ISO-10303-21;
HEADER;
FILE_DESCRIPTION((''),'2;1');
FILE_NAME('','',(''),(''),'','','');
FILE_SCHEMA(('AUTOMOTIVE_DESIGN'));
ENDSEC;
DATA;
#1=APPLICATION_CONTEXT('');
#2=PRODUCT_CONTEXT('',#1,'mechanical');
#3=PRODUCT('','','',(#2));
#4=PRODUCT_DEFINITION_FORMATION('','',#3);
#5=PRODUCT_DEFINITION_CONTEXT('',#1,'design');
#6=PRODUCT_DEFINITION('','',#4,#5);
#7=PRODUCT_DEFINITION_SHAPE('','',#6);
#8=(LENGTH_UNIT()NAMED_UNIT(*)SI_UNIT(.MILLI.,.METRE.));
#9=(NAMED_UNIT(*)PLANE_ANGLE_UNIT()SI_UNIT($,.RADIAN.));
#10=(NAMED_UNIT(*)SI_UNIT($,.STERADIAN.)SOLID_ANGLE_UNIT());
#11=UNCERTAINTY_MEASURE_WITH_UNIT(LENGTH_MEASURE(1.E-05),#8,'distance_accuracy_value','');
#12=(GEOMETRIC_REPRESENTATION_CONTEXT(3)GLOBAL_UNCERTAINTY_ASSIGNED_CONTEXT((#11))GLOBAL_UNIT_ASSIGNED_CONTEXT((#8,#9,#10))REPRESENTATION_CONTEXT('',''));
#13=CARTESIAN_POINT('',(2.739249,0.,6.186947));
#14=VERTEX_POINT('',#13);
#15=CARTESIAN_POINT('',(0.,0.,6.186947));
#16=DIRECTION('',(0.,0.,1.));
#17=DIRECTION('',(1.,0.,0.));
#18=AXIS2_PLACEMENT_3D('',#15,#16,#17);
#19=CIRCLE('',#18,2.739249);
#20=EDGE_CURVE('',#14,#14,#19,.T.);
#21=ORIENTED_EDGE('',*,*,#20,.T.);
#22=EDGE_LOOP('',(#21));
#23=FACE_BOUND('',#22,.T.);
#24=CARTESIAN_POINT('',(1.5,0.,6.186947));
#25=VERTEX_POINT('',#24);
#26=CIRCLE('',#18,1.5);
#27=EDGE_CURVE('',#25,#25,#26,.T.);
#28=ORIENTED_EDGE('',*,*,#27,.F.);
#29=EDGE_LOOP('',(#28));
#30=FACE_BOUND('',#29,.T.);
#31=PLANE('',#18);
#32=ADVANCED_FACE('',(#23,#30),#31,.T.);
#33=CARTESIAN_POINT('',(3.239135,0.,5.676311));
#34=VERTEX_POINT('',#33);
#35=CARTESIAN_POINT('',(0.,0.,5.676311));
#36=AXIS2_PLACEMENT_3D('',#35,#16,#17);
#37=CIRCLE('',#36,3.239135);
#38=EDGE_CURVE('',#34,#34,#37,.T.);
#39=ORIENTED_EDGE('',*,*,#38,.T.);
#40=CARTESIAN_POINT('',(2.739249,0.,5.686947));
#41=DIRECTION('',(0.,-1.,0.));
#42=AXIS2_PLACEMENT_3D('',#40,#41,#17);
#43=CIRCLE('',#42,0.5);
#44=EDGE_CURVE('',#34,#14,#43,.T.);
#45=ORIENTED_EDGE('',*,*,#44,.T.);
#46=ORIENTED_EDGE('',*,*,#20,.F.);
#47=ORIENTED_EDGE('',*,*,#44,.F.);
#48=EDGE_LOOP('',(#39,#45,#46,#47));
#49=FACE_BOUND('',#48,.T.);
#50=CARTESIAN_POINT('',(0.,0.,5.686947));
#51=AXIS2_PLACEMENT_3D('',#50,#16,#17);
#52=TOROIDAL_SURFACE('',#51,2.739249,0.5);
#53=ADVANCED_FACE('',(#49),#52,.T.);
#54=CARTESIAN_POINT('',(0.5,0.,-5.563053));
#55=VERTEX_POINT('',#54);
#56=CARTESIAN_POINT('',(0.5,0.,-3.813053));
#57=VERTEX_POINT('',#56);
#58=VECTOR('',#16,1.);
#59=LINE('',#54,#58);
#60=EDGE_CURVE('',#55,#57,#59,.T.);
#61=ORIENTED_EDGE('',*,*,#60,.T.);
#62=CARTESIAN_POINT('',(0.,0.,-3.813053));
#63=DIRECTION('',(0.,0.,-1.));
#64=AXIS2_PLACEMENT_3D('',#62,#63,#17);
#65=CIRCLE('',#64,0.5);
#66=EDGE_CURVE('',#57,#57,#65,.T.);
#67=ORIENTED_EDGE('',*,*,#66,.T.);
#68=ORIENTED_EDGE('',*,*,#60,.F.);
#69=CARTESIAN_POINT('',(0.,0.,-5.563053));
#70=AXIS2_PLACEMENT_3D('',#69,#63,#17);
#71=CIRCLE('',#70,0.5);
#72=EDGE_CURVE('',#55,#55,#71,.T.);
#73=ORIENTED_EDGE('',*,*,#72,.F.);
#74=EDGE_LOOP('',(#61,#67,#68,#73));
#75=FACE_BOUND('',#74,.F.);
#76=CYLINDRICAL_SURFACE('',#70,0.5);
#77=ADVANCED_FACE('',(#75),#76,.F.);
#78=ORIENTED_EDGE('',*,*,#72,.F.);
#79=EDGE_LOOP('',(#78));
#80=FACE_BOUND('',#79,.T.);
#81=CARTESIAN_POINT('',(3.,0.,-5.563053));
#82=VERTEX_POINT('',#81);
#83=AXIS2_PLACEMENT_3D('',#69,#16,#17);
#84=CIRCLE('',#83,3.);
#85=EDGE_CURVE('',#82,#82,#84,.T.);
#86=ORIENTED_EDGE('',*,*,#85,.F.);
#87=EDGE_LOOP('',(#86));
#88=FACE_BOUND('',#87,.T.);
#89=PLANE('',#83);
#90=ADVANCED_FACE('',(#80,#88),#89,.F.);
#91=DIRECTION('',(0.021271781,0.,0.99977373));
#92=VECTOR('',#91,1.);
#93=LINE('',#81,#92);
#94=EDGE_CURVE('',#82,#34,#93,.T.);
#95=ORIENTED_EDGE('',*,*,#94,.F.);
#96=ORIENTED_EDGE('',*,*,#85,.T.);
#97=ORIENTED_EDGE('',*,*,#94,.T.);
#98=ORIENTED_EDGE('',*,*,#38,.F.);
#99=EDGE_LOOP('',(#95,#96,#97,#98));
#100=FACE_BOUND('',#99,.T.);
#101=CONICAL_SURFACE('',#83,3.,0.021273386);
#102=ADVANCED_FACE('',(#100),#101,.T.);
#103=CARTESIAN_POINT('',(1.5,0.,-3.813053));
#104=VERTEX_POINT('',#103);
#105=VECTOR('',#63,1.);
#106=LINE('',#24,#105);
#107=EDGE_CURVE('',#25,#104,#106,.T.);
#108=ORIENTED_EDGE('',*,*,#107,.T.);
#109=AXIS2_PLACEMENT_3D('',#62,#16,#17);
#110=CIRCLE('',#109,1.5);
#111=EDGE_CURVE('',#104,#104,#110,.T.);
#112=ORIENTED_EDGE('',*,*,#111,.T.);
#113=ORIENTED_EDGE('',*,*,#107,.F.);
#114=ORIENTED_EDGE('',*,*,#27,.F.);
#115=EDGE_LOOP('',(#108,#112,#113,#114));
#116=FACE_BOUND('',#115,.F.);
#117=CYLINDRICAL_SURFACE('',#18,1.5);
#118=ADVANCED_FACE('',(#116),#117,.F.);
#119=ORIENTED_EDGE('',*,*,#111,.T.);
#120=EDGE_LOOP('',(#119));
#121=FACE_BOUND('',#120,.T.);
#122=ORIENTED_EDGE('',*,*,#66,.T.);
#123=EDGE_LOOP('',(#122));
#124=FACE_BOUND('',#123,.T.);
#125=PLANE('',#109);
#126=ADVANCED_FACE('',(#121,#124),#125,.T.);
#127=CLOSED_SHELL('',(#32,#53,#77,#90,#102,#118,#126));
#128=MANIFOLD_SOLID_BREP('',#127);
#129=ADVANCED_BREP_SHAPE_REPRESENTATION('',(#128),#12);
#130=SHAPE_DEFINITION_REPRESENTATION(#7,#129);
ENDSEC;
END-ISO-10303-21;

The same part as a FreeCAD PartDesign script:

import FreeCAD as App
import Part
import Sketcher

V = App.Vector
Q = App.Units.Quantity


def edges_at(feature, points):
    """Names of the edges that pass closest to the given points."""
    edges = feature.Shape.Edges
    near = lambda p: min(range(len(edges)), key=lambda i: edges[i].distToShape(Part.Vertex(*p))[0])
    return sorted({f"Edge{near(p) + 1}" for p in points})


def add_polygon(sketch, points):
    """Adds a closed chain of lines whose ends are joined by coincident constraints."""
    first, n = sketch.GeometryCount, len(points)
    for a, b in zip(points, points[1:] + points[:1]):
        sketch.addGeometry(Part.LineSegment(App.Vector(*a, 0), App.Vector(*b, 0)), False)
    for i in range(n):
        sketch.addConstraint(Sketcher.Constraint("Coincident", first + i, 2, first + (i + 1) % n, 1))

doc = App.newDocument("Part")
params = doc.addObject("Spreadsheet::Sheet", "Params")
for row, (alias, value) in enumerate([
    ("sketch1_width", "3 mm"),
    ("sketch1_width2", "3.25 mm"),
    ("sketch1_height", "11.75 mm"),
    ("revolution_angle", "360 deg"),
    ("fillet_radius", "0.5 mm"),
    ("sketch2_diameter", "3 mm"),
    ("pocket1_length", "10 mm"),
    ("sketch3_diameter", "1 mm"),
    ("pocket2_length", "2 mm"),
], start=1):
    params.set(f"A{row}", alias)
    params.set(f"B{row}", "=" + value)
    params.setAlias(f"B{row}", alias)

body = doc.addObject("PartDesign::Body", "Body")

# Sketch on XZ plane
sketch1 = doc.addObject("Sketcher::SketchObject", "Sketch")
body.addObject(sketch1)
sketch1.AttachmentSupport = (doc.XZ_Plane, [""])
sketch1.MapMode = "FlatFace"
add_polygon(sketch1, [(0, 6.2), (0, -5.6), (3, -5.6), (3.2, 6.2)])  # lines 0-3
sketch1.addConstraint(Sketcher.Constraint("Vertical", 0))
sketch1.addConstraint(Sketcher.Constraint("Horizontal", 1))
sketch1.addConstraint(Sketcher.Constraint("Horizontal", 3))
sketch1.addConstraint(Sketcher.Constraint("PointOnObject", 0, 2, -2))
sketch1.addConstraint(Sketcher.Constraint("DistanceX", 1, 1, 1, 2, Q("3 mm")))
sketch1.addConstraint(Sketcher.Constraint("DistanceX", 3, 2, 3, 1, Q("3.25 mm")))
sketch1.addConstraint(Sketcher.Constraint("DistanceY", 0, 2, 0, 1, Q("11.75 mm")))
sketch1.addConstraint(Sketcher.Constraint("DistanceY", 0, 2, -1, 1, Q("5.563053 mm")))
sketch1.setExpression("Constraints[8]", "Params.sketch1_width")
sketch1.setExpression("Constraints[9]", "Params.sketch1_width2")
sketch1.setExpression("Constraints[10]", "Params.sketch1_height")
revolution = doc.addObject("PartDesign::Revolution", "Revolution")
body.addObject(revolution)
revolution.Profile = sketch1
revolution.ReferenceAxis = (sketch1, ["V_Axis"])
revolution.setExpression("Angle", "Params.revolution_angle")
doc.recompute()

fillet = doc.addObject("PartDesign::Fillet", "Fillet")
body.addObject(fillet)
fillet.Base = (revolution, edges_at(revolution, [(-3.25, 0, 6.187)]))
fillet.setExpression("Radius", "Params.fillet_radius")

# Sketch on XY plane
sketch2 = doc.addObject("Sketcher::SketchObject", "Sketch001")
body.addObject(sketch2)
sketch2.AttachmentSupport = (doc.XY_Plane, [""])
sketch2.MapMode = "FlatFace"
sketch2.AttachmentOffset = App.Placement(V(0, 0, 6.186947), App.Rotation())
sketch2.addGeometry(Part.Circle(V(0, 0, 0), V(0, 0, 1), 1.5), False)
sketch2.addConstraint(Sketcher.Constraint("Coincident", 0, 3, -1, 1))
sketch2.addConstraint(Sketcher.Constraint("Diameter", 0, Q("3 mm")))
sketch2.setExpression("Constraints[1]", "Params.sketch2_diameter")
pocket1 = doc.addObject("PartDesign::Pocket", "Pocket")
body.addObject(pocket1)
pocket1.Profile = sketch2
pocket1.setExpression("Length", "Params.pocket1_length")

# Sketch on XY plane
sketch3 = doc.addObject("Sketcher::SketchObject", "Sketch002")
body.addObject(sketch3)
sketch3.AttachmentSupport = (doc.XY_Plane, [""])
sketch3.MapMode = "FlatFace"
sketch3.AttachmentOffset = App.Placement(V(0, 0, -5.563053), App.Rotation())
sketch3.addGeometry(Part.Circle(V(0, 0, 0), V(0, 0, 1), 0.5), False)
sketch3.addConstraint(Sketcher.Constraint("Coincident", 0, 3, -1, 1))
sketch3.addConstraint(Sketcher.Constraint("Diameter", 0, Q("1 mm")))
sketch3.setExpression("Constraints[1]", "Params.sketch3_diameter")
pocket2 = doc.addObject("PartDesign::Pocket", "Pocket001")
body.addObject(pocket2)
pocket2.Profile = sketch3
pocket2.setExpression("Length", "Params.pocket2_length")
pocket2.Reversed = True

doc.recompute()
